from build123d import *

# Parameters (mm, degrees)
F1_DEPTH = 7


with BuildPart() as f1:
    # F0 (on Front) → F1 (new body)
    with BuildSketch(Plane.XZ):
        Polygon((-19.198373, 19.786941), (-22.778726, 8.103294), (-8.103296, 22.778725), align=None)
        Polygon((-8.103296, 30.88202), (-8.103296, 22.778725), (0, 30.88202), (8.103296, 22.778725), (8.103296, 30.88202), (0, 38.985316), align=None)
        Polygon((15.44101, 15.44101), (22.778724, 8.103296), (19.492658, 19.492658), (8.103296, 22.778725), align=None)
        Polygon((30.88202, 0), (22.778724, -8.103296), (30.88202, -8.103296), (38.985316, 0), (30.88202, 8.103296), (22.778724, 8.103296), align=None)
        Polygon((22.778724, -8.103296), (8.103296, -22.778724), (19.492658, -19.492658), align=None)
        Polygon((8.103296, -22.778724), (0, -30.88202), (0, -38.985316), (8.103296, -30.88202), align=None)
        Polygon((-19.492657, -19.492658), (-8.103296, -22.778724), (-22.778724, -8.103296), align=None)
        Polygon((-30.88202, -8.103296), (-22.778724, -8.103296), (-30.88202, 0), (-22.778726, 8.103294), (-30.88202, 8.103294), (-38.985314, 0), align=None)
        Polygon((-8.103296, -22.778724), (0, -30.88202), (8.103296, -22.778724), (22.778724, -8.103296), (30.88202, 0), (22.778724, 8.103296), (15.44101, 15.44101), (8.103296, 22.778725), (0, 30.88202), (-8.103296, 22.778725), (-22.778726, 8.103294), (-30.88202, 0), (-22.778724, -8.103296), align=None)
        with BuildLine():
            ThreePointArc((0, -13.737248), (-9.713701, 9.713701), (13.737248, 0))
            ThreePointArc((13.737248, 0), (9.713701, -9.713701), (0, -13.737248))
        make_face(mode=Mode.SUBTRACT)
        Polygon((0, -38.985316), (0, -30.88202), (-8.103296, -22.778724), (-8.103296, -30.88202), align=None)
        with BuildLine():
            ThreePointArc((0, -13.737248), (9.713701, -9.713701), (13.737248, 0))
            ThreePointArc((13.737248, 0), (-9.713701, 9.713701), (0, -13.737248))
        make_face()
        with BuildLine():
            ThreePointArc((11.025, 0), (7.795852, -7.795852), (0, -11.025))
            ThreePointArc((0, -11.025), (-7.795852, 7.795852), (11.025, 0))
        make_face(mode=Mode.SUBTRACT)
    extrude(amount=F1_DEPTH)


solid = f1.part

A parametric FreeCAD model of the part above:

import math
import FreeCAD as App
import Part
import Sketcher
from FreeCAD import Vector

doc = App.newDocument("Part")
params = doc.addObject("Spreadsheet::Sheet", "Params")
for row, (alias, value) in enumerate([
    ("pad1_length", "7 mm"),
], start=1):
    params.set(f"A{row}", alias)
    params.set(f"B{row}", "=" + value)
    params.setAlias(f"B{row}", alias)

body = doc.addObject("PartDesign::Body", "Body")

# Sketch on XZ plane
sketch1 = body.newObject("Sketcher::SketchObject", "Sketch")
sketch1.AttachmentSupport = (doc.getObject("XZ_Plane"), [""])
sketch1.MapMode = "FlatFace"
sketch1.addGeometry(Part.LineSegment(Vector(-19, 20, 0), Vector(-23, 8, 0)), False)
sketch1.addGeometry(Part.LineSegment(Vector(-23, 8, 0), Vector(-31, 8, 0)), False)
sketch1.addGeometry(Part.LineSegment(Vector(-31, 8, 0), Vector(-39, 0, 0)), False)
sketch1.addGeometry(Part.LineSegment(Vector(-39, 0, 0), Vector(-31, -8, 0)), False)
sketch1.addGeometry(Part.LineSegment(Vector(-31, -8, 0), Vector(-23, -8, 0)), False)
sketch1.addGeometry(Part.LineSegment(Vector(-23, -8, 0), Vector(-19, -19, 0)), False)
sketch1.addGeometry(Part.LineSegment(Vector(-19, -19, 0), Vector(-8, -23, 0)), False)
sketch1.addGeometry(Part.LineSegment(Vector(-8, -23, 0), Vector(-8, -31, 0)), False)
sketch1.addGeometry(Part.LineSegment(Vector(-8, -31, 0), Vector(0, -39, 0)), False)
sketch1.addGeometry(Part.LineSegment(Vector(0, -39, 0), Vector(8, -31, 0)), False)
sketch1.addGeometry(Part.LineSegment(Vector(8, -31, 0), Vector(8, -23, 0)), False)
sketch1.addGeometry(Part.LineSegment(Vector(8, -23, 0), Vector(19, -19, 0)), False)
sketch1.addGeometry(Part.LineSegment(Vector(19, -19, 0), Vector(23, -8, 0)), False)
sketch1.addGeometry(Part.LineSegment(Vector(23, -8, 0), Vector(31, -8, 0)), False)
sketch1.addGeometry(Part.LineSegment(Vector(31, -8, 0), Vector(39, 0, 0)), False)
sketch1.addGeometry(Part.LineSegment(Vector(39, 0, 0), Vector(31, 8, 0)), False)
sketch1.addGeometry(Part.LineSegment(Vector(31, 8, 0), Vector(23, 8, 0)), False)
sketch1.addGeometry(Part.LineSegment(Vector(23, 8, 0), Vector(19, 19, 0)), False)
sketch1.addGeometry(Part.LineSegment(Vector(19, 19, 0), Vector(8, 23, 0)), False)
sketch1.addGeometry(Part.LineSegment(Vector(8, 23, 0), Vector(8, 31, 0)), False)
sketch1.addGeometry(Part.LineSegment(Vector(8, 31, 0), Vector(0, 39, 0)), False)
sketch1.addGeometry(Part.LineSegment(Vector(0, 39, 0), Vector(-8, 31, 0)), False)
sketch1.addGeometry(Part.LineSegment(Vector(-8, 31, 0), Vector(-8, 23, 0)), False)
sketch1.addGeometry(Part.LineSegment(Vector(-8, 23, 0), Vector(-19, 20, 0)), False)
sketch1.addGeometry(Part.ArcOfCircle(Part.Circle(Vector(0, 0, 0), Vector(0, 0, 1), 11), math.radians(0), math.radians(270)), False)
sketch1.addGeometry(Part.ArcOfCircle(Part.Circle(Vector(0, 0, 0), Vector(0, 0, 1), 11), math.radians(-90), math.radians(0)), False)
sketch1.addConstraint(Sketcher.Constraint("Coincident", 0, 2, 1, 1))
sketch1.addConstraint(Sketcher.Constraint("Coincident", 1, 2, 2, 1))
sketch1.addConstraint(Sketcher.Constraint("Coincident", 2, 2, 3, 1))
sketch1.addConstraint(Sketcher.Constraint("Coincident", 3, 2, 4, 1))
sketch1.addConstraint(Sketcher.Constraint("Coincident", 4, 2, 5, 1))
sketch1.addConstraint(Sketcher.Constraint("Coincident", 5, 2, 6, 1))
sketch1.addConstraint(Sketcher.Constraint("Coincident", 6, 2, 7, 1))
sketch1.addConstraint(Sketcher.Constraint("Coincident", 7, 2, 8, 1))
sketch1.addConstraint(Sketcher.Constraint("Coincident", 8, 2, 9, 1))
sketch1.addConstraint(Sketcher.Constraint("Coincident", 9, 2, 10, 1))
sketch1.addConstraint(Sketcher.Constraint("Coincident", 10, 2, 11, 1))
sketch1.addConstraint(Sketcher.Constraint("Coincident", 11, 2, 12, 1))
sketch1.addConstraint(Sketcher.Constraint("Coincident", 12, 2, 13, 1))
sketch1.addConstraint(Sketcher.Constraint("Coincident", 13, 2, 14, 1))
sketch1.addConstraint(Sketcher.Constraint("Coincident", 14, 2, 15, 1))
sketch1.addConstraint(Sketcher.Constraint("Coincident", 15, 2, 16, 1))
sketch1.addConstraint(Sketcher.Constraint("Coincident", 16, 2, 17, 1))
sketch1.addConstraint(Sketcher.Constraint("Coincident", 17, 2, 18, 1))
sketch1.addConstraint(Sketcher.Constraint("Coincident", 18, 2, 19, 1))
sketch1.addConstraint(Sketcher.Constraint("Coincident", 19, 2, 20, 1))
sketch1.addConstraint(Sketcher.Constraint("Coincident", 20, 2, 21, 1))
sketch1.addConstraint(Sketcher.Constraint("Coincident", 21, 2, 22, 1))
sketch1.addConstraint(Sketcher.Constraint("Coincident", 22, 2, 23, 1))
sketch1.addConstraint(Sketcher.Constraint("Coincident", 23, 2, 0, 1))
sketch1.addConstraint(Sketcher.Constraint("Tangent", 24, 1, 25, 2))
sketch1.addConstraint(Sketcher.Constraint("Coincident", 25, 1, 24, 2))
sketch1.addConstraint(Sketcher.Constraint("Horizontal", 1))
sketch1.addConstraint(Sketcher.Constraint("Horizontal", 4))
sketch1.addConstraint(Sketcher.Constraint("Vertical", 7))
sketch1.addConstraint(Sketcher.Constraint("Vertical", 10))
sketch1.addConstraint(Sketcher.Constraint("Horizontal", 13))
sketch1.addConstraint(Sketcher.Constraint("Horizontal", 16))
sketch1.addConstraint(Sketcher.Constraint("Vertical", 19))
sketch1.addConstraint(Sketcher.Constraint("Vertical", 22))
sketch1.addConstraint(Sketcher.Constraint("Coincident", 24, 3, -1, 1))
sketch1.addConstraint(Sketcher.Constraint("Symmetric", 0, 2, 12, 2, -1, 1))
sketch1.addConstraint(Sketcher.Constraint("Symmetric", 2, 2, 14, 2, -1, 1))
sketch1.addConstraint(Sketcher.Constraint("Symmetric", 3, 2, 15, 2, -1, 1))
sketch1.addConstraint(Sketcher.Constraint("Symmetric", 5, 2, 17, 2, -1, 1))
sketch1.addConstraint(Sketcher.Constraint("Symmetric", 6, 2, 18, 2, -1, 1))
sketch1.addConstraint(Sketcher.Constraint("Symmetric", 8, 2, 20, 2, -1, 1))
sketch1.addConstraint(Sketcher.Constraint("Symmetric", 9, 2, 21, 2, -1, 1))
sketch1.addConstraint(Sketcher.Constraint("Symmetric", 7, 2, 9, 2, -2))
sketch1.addConstraint(Sketcher.Constraint("Symmetric", 5, 2, 11, 2, -2))
sketch1.addConstraint(Sketcher.Constraint("Symmetric", 4, 2, 12, 2, -2))
sketch1.addConstraint(Sketcher.Constraint("PointOnObject", 2, 2, -1))
sketch1.addConstraint(Sketcher.Constraint("PointOnObject", 8, 2, -2))
sketch1.addConstraint(Sketcher.Constraint("PointOnObject", 24, 1, -1))
sketch1.addConstraint(Sketcher.Constraint("PointOnObject", 25, 1, -2))
sketch1.addConstraint(Sketcher.Constraint("Perpendicular", 2, 3))
sketch1.addConstraint(Sketcher.Constraint("Parallel", 3, 8))
sketch1.addConstraint(Sketcher.Constraint("Perpendicular", 8, 9))
sketch1.addConstraint(Sketcher.Constraint("Perpendicular", 5, 11))
sketch1.addConstraint(Sketcher.Constraint("Perpendicular", 6, 12))
sketch1.addConstraint(Sketcher.Constraint("Parallel", 9, 14))
sketch1.addConstraint(Sketcher.Constraint("Perpendicular", 11, 17))
sketch1.addConstraint(Sketcher.Constraint("Parallel", 15, 20))
sketch1.addConstraint(Sketcher.Constraint("Horizontal", 18, 2, 22, 2))
sketch1.addConstraint(Sketcher.Constraint("Equal", 16, 7))
sketch1.addConstraint(Sketcher.Constraint("Equal", 5, 6))
sketch1.addConstraint(Sketcher.Constraint("Equal", 3, 8))
sketch1.addConstraint(Sketcher.Constraint("Radius", 24, 11.025))
sketch1.addConstraint(Sketcher.Constraint("Distance", 2, 11.459788))
sketch1.addConstraint(Sketcher.Constraint("DistanceX", 1, 2, 1, 1, 8.103294))
sketch1.addConstraint(Sketcher.Constraint("DistanceX", 1, 2, -1, 1, 30.88202))
sketch1.addConstraint(Sketcher.Constraint("DistanceY", -1, 1, 23, 2, 19.786941))
sketch1.addConstraint(Sketcher.Constraint("DistanceY", 5, 2, 4, 2, 11.389362))
sketch1.addConstraint(Sketcher.Constraint("Distance", 0, 12.219924))
pad1 = body.newObject("PartDesign::Pad", "Pad")
pad1.Profile = sketch1
pad1.setExpression("Length", "Params.pad1_length")

doc.recompute()
